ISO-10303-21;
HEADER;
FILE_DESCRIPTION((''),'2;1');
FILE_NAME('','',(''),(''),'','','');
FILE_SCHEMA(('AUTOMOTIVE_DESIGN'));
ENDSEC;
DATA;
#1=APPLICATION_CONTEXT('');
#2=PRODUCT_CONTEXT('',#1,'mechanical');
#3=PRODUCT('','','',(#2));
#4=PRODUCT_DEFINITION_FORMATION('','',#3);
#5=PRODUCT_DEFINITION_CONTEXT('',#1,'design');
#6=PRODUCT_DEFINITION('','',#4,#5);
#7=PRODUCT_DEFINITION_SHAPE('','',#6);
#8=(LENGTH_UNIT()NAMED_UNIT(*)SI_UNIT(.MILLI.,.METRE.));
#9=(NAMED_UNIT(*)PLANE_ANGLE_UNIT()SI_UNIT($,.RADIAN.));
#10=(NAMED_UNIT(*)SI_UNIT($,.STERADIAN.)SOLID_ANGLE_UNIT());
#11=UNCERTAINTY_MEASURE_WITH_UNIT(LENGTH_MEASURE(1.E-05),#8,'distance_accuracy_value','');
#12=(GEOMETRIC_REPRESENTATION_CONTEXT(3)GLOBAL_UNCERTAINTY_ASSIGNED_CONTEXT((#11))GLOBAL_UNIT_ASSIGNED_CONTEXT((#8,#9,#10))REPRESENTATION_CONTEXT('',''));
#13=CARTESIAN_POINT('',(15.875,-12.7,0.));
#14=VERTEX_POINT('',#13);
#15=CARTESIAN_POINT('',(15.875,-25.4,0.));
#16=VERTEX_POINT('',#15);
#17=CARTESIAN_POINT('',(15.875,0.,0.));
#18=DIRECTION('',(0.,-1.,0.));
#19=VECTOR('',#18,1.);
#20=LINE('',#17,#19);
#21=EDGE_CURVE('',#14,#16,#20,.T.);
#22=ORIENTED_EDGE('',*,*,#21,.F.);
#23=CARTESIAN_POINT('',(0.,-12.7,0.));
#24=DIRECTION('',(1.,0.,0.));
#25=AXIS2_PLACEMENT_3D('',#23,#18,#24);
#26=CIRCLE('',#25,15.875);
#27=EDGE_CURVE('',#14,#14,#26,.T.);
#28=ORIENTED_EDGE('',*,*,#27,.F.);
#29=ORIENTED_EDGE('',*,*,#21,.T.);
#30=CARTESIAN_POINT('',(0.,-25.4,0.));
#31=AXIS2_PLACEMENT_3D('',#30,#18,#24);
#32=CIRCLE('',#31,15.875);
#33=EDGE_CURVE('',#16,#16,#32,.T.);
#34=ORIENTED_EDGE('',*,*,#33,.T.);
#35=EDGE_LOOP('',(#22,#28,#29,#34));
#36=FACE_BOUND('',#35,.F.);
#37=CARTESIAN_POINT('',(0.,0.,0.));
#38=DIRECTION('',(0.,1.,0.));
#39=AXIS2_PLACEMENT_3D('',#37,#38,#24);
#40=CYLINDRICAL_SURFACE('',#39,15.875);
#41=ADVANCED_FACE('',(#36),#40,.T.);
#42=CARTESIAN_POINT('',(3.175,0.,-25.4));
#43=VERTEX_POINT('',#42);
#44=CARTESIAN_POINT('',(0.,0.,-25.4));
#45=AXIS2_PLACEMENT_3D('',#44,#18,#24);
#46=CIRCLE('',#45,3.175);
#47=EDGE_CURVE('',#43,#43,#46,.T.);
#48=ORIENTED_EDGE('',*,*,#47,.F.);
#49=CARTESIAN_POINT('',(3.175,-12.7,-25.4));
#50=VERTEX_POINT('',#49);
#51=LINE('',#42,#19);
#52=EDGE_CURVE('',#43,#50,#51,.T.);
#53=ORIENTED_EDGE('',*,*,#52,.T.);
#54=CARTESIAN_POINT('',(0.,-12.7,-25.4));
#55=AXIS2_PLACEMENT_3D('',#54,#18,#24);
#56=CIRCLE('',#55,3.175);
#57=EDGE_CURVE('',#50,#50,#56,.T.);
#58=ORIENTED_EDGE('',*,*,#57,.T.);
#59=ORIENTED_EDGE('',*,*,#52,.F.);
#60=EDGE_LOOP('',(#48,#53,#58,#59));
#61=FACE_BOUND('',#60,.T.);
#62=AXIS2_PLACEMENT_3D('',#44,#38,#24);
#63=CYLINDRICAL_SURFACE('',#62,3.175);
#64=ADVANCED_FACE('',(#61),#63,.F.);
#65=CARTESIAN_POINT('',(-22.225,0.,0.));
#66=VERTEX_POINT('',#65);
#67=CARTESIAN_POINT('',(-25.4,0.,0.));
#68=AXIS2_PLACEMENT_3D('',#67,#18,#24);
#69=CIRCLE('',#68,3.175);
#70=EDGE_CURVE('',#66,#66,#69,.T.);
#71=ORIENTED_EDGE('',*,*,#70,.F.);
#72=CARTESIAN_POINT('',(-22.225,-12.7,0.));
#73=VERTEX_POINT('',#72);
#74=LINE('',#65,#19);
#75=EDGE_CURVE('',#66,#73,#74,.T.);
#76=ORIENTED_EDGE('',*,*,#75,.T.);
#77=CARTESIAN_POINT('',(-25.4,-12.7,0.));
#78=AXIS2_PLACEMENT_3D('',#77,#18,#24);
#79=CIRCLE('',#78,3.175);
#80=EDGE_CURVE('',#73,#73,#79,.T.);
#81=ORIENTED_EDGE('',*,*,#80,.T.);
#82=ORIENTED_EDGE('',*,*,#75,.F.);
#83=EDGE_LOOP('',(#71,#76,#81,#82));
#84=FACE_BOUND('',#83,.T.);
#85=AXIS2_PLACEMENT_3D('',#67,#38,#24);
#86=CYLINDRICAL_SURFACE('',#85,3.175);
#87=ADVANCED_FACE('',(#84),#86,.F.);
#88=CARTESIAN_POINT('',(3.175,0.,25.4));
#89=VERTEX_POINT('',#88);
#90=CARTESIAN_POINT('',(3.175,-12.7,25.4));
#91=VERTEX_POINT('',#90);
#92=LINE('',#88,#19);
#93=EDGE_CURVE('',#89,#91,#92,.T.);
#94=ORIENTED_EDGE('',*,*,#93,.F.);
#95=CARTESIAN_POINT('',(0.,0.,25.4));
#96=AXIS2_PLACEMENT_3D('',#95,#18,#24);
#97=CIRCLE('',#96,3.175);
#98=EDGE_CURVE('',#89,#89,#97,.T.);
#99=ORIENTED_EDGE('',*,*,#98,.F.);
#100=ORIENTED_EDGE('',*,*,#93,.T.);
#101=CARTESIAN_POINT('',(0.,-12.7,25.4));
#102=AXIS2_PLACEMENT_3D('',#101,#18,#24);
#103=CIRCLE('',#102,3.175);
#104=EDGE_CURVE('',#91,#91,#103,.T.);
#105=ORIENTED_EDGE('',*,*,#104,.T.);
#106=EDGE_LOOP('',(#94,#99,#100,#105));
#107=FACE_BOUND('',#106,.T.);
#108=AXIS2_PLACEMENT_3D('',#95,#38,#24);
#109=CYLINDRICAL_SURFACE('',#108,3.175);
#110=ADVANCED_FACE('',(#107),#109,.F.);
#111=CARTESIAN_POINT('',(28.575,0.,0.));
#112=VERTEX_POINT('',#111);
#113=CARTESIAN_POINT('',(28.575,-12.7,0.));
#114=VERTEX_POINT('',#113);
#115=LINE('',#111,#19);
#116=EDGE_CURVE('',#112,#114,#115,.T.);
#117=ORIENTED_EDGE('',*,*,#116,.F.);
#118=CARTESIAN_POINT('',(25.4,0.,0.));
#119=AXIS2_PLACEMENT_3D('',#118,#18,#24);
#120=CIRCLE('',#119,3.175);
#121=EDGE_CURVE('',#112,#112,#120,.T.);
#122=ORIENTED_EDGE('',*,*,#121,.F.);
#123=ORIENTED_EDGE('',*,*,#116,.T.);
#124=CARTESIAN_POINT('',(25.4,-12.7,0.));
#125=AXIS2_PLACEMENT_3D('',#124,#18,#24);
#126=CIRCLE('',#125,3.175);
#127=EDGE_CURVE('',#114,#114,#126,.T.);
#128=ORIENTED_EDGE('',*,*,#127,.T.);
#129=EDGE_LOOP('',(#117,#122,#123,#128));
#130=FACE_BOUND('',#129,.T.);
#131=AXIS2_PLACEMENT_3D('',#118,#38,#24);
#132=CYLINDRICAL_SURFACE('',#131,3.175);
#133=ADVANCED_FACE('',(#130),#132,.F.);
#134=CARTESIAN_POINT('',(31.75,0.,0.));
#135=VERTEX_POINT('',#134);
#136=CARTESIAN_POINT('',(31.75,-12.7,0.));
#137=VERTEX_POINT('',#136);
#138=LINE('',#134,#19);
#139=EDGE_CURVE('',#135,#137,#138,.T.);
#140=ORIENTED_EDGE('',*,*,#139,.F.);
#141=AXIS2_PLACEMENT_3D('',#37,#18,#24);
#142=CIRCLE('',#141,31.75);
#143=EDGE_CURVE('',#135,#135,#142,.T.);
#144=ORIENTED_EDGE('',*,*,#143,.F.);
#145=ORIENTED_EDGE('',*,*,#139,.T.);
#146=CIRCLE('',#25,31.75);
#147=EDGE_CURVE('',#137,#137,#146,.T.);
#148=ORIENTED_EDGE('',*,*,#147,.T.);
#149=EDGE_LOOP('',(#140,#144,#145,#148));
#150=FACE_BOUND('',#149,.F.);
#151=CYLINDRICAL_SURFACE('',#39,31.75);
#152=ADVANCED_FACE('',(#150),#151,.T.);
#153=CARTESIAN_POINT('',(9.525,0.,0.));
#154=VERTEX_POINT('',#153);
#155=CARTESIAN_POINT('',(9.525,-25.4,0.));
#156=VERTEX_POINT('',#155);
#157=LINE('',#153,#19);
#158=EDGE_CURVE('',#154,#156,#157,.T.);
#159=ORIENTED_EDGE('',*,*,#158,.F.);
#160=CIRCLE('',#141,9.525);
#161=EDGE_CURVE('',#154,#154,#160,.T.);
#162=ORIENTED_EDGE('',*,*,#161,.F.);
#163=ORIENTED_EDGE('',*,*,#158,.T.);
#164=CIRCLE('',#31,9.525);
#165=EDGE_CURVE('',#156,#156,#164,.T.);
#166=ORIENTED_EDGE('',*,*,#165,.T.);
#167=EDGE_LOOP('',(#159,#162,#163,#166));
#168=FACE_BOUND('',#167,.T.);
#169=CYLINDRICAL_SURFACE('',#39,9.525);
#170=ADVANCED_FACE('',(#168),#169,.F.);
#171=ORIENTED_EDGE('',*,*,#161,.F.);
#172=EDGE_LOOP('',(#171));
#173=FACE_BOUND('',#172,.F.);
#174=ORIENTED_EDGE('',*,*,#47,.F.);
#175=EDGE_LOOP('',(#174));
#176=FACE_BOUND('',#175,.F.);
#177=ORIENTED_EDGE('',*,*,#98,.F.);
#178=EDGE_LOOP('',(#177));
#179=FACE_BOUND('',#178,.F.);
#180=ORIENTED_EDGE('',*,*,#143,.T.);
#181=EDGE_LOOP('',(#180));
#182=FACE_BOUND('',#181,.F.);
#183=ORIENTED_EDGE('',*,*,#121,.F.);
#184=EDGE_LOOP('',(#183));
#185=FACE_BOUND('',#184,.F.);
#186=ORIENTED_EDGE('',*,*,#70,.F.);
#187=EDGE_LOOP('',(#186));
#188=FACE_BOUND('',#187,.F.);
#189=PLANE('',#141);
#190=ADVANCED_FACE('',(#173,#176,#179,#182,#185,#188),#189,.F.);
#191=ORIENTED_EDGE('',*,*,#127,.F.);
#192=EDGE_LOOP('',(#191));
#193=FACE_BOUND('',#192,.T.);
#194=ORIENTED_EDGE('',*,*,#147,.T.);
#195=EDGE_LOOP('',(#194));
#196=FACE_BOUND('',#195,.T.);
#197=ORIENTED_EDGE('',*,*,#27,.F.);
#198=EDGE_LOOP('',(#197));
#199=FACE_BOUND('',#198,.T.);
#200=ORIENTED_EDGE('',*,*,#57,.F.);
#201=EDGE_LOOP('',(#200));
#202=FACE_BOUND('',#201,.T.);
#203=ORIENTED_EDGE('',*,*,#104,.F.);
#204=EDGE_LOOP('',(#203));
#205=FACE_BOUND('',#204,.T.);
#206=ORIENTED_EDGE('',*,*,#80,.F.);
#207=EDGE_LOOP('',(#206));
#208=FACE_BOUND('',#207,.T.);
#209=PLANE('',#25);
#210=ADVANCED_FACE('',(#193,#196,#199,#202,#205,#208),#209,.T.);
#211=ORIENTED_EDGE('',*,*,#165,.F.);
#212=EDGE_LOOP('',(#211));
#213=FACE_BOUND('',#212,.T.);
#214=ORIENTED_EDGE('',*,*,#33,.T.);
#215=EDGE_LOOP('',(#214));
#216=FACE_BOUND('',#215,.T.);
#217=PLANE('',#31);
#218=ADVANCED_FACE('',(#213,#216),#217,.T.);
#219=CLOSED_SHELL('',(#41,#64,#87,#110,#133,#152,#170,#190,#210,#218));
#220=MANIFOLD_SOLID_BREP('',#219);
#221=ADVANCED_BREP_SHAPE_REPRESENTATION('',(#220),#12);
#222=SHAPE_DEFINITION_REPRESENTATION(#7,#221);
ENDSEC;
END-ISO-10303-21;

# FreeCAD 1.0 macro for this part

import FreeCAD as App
import Part
import Sketcher
Q = App.Units.Quantity

doc = App.newDocument("Part")
params = doc.addObject("Spreadsheet::Sheet", "Params")
for row, (alias, value) in enumerate([
    ("sketch1_diameter", "2.5 in"),
    ("sketch1_diameter2", "0.25 in"),
    ("sketch1_diameter3", "1.25 in"),
    ("pad1_length", "0.5 in"),
    ("sketch2_diameter", "1.25 in"),
    ("sketch2_diameter2", "0.75 in"),
    ("pad2_length", "1 in"),
], start=1):
    params.set(f"A{row}", alias)
    params.set(f"B{row}", "=" + value)
    params.setAlias(f"B{row}", alias)

body = doc.addObject("PartDesign::Body", "Body")

# Sketch on XZ plane
sketch1 = body.newObject("Sketcher::SketchObject", "Sketch")
sketch1.AttachmentSupport = (doc.getObject("XZ_Plane"), [""])
sketch1.MapMode = "FlatFace"
sketch1.addGeometry(Part.Circle(App.Vector(0, 0, 0), App.Vector(0, 0, 1), 31.75), False)
sketch1.addGeometry(Part.Circle(App.Vector(0, -25.4, 0), App.Vector(0, 0, 1), 3.175), False)
sketch1.addGeometry(Part.Circle(App.Vector(0, 0, 0), App.Vector(0, 0, 1), 15.875), False)
sketch1.addGeometry(Part.Circle(App.Vector(-25.4, 0, 0), App.Vector(0, 0, 1), 3.175), False)
sketch1.addGeometry(Part.Circle(App.Vector(25.4, 0, 0), App.Vector(0, 0, 1), 3.175), False)
sketch1.addGeometry(Part.Circle(App.Vector(0, 25.4, 0), App.Vector(0, 0, 1), 3.175), False)
sketch1.addConstraint(Sketcher.Constraint("Coincident", 0, 3, -1, 1))
sketch1.addConstraint(Sketcher.Constraint("Coincident", 2, 3, -1, 1))
sketch1.addConstraint(Sketcher.Constraint("Equal", 1, 3))
sketch1.addConstraint(Sketcher.Constraint("Equal", 3, 4))
sketch1.addConstraint(Sketcher.Constraint("Equal", 4, 5))
sketch1.addConstraint(Sketcher.Constraint("Symmetric", 3, 3, 4, 3, -1, 1))
sketch1.addConstraint(Sketcher.Constraint("Symmetric", 1, 3, 5, 3, -1, 1))
sketch1.addConstraint(Sketcher.Constraint("PointOnObject", 1, 3, -2))
sketch1.addConstraint(Sketcher.Constraint("PointOnObject", 3, 3, -1))
sketch1.addConstraint(Sketcher.Constraint("Diameter", 0, Q("2.5 in")))
sketch1.addConstraint(Sketcher.Constraint("Diameter", 1, Q("0.25 in")))
sketch1.addConstraint(Sketcher.Constraint("Diameter", 2, Q("1.25 in")))
sketch1.addConstraint(Sketcher.Constraint("DistanceY", 1, 3, -1, 1, Q("1 in")))
sketch1.addConstraint(Sketcher.Constraint("DistanceX", 3, 3, -1, 1, Q("1 in")))
sketch1.setExpression("Constraints[9]", "Params.sketch1_diameter")
sketch1.setExpression("Constraints[10]", "Params.sketch1_diameter2")
sketch1.setExpression("Constraints[11]", "Params.sketch1_diameter3")
pad1 = body.newObject("PartDesign::Pad", "Pad")
pad1.Profile = sketch1
pad1.setExpression("Length", "Params.pad1_length")

# Sketch on XZ plane
sketch2 = body.newObject("Sketcher::SketchObject", "Sketch001")
sketch2.AttachmentSupport = (doc.getObject("XZ_Plane"), [""])
sketch2.MapMode = "FlatFace"
sketch2.addGeometry(Part.Circle(App.Vector(0, 0, 0), App.Vector(0, 0, 1), 15.875), False)
sketch2.addGeometry(Part.Circle(App.Vector(0, 0, 0), App.Vector(0, 0, 1), 9.525), False)
sketch2.addConstraint(Sketcher.Constraint("Coincident", 0, 3, -1, 1))
sketch2.addConstraint(Sketcher.Constraint("Coincident", 1, 3, -1, 1))
sketch2.addConstraint(Sketcher.Constraint("Diameter", 0, Q("1.25 in")))
sketch2.addConstraint(Sketcher.Constraint("Diameter", 1, Q("0.75 in")))
sketch2.setExpression("Constraints[2]", "Params.sketch2_diameter")
sketch2.setExpression("Constraints[3]", "Params.sketch2_diameter2")
pad2 = body.newObject("PartDesign::Pad", "Pad001")
pad2.Profile = sketch2
pad2.setExpression("Length", "Params.pad2_length")

doc.recompute()
